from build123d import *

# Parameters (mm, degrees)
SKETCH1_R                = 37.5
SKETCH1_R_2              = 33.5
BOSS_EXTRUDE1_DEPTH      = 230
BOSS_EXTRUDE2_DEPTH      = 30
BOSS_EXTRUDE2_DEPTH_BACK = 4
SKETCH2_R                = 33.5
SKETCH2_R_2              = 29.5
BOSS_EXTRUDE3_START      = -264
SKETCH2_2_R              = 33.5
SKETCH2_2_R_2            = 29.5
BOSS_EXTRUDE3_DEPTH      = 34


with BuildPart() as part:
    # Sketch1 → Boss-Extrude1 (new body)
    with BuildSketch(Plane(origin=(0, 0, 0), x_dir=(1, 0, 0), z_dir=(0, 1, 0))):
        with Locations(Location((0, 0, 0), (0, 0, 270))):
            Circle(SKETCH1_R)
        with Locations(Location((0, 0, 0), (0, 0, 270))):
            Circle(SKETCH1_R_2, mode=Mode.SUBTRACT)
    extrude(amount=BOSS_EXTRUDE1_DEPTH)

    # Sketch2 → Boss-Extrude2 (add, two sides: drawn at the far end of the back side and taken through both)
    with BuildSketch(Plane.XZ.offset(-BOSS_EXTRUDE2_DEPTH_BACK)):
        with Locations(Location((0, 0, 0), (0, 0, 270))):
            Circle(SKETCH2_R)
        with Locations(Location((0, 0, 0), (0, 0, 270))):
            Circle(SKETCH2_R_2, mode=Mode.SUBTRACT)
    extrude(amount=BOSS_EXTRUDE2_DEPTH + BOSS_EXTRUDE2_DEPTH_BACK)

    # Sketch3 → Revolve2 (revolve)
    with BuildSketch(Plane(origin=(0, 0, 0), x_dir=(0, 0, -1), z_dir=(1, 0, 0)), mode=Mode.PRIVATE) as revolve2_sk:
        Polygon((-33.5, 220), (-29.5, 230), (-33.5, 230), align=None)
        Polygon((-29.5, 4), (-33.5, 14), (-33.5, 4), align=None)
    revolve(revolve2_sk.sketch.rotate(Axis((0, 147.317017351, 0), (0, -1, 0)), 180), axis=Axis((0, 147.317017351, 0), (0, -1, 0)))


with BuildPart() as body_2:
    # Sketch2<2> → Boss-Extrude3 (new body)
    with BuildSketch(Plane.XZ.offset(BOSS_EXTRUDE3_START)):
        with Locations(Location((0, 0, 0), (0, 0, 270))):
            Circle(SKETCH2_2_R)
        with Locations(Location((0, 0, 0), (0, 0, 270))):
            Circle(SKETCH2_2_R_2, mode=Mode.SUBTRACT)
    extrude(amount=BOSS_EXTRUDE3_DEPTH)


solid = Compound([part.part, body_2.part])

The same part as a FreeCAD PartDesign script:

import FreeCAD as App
import Part
import Sketcher

V = App.Vector

doc = App.newDocument("Part")
params = doc.addObject("Spreadsheet::Sheet", "Params")
for row, (alias, value) in enumerate([
    ("sketch1_diameter", "75 mm"),
    ("sketch1_diameter2", "67 mm"),
    ("pad1_length", "230 mm"),
    ("sketch2_diameter", "67 mm"),
    ("sketch2_diameter2", "59 mm"),
    ("pad2_length", "30 mm"),
    ("pad2_length2", "4 mm"),
    ("sketch3_width", "10 mm"),
    ("sketch3_height", "4 mm"),
    ("revolution_angle", "360 deg"),
    ("sketch4_diameter", "67 mm"),
    ("sketch4_diameter2", "59 mm"),
    ("pad3_length", "34 mm"),
], start=1):
    params.set(f"A{row}", alias)
    params.set(f"B{row}", "=" + value)
    params.setAlias(f"B{row}", alias)

body = doc.addObject("PartDesign::Body", "Body")

sketch1 = body.newObject("Sketcher::SketchObject", "Sketch")
sketch1.AttachmentSupport = (doc.getObject("XZ_Plane"), [""])
sketch1.MapMode = "FlatFace"
sketch1.addGeometry(Part.Circle(V(0, 0, 0), V(0, 0, 1), 38), False)
sketch1.addGeometry(Part.Circle(V(0, 0, 0), V(0, 0, 1), 34), False)
sketch1.addConstraint(Sketcher.Constraint("Coincident", 0, 3, -1, 1))
sketch1.addConstraint(Sketcher.Constraint("Coincident", 1, 3, -1, 1))
sketch1.addConstraint(Sketcher.Constraint("Diameter", 0, 75.0))
sketch1.addConstraint(Sketcher.Constraint("Diameter", 1, 67.0))
sketch1.setExpression("Constraints[2]", "Params.sketch1_diameter")
sketch1.setExpression("Constraints[3]", "Params.sketch1_diameter2")
pad1 = body.newObject("PartDesign::Pad", "Pad")
pad1.Profile = sketch1
pad1.setExpression("Length", "Params.pad1_length")
pad1.Reversed = True

sketch2 = body.newObject("Sketcher::SketchObject", "Sketch001")
sketch2.AttachmentSupport = (doc.getObject("XZ_Plane"), [""])
sketch2.MapMode = "FlatFace"
sketch2.addGeometry(Part.Circle(V(0, 0, 0), V(0, 0, 1), 34), False)
sketch2.addGeometry(Part.Circle(V(0, 0, 0), V(0, 0, 1), 30), False)
sketch2.addConstraint(Sketcher.Constraint("Coincident", 0, 3, -1, 1))
sketch2.addConstraint(Sketcher.Constraint("Coincident", 1, 3, -1, 1))
sketch2.addConstraint(Sketcher.Constraint("Diameter", 0, 67.0))
sketch2.addConstraint(Sketcher.Constraint("Diameter", 1, 59.0))
sketch2.setExpression("Constraints[2]", "Params.sketch2_diameter")
sketch2.setExpression("Constraints[3]", "Params.sketch2_diameter2")
pad2 = body.newObject("PartDesign::Pad", "Pad001")
pad2.Profile = sketch2
pad2.Type = "TwoLengths"
pad2.setExpression("Length", "Params.pad2_length")
pad2.setExpression("Length2", "Params.pad2_length2")

sketch3 = body.newObject("Sketcher::SketchObject", "Sketch002")
sketch3.AttachmentSupport = (doc.getObject("YZ_Plane"), [""])
sketch3.MapMode = "FlatFace"
sketch3.addGeometry(Part.LineSegment(V(220, 33.5, 0), V(230, 29.5, 0)), False)
sketch3.addGeometry(Part.LineSegment(V(230, 29.5, 0), V(230, 33.5, 0)), False)
sketch3.addGeometry(Part.LineSegment(V(230, 33.5, 0), V(220, 33.5, 0)), False)
sketch3.addGeometry(Part.LineSegment(V(4, 29.5, 0), V(14, 33.5, 0)), False)
sketch3.addGeometry(Part.LineSegment(V(14, 33.5, 0), V(4, 33.5, 0)), False)
sketch3.addGeometry(Part.LineSegment(V(4, 33.5, 0), V(4, 29.5, 0)), False)
sketch3.addConstraint(Sketcher.Constraint("Coincident", 0, 2, 1, 1))
sketch3.addConstraint(Sketcher.Constraint("Coincident", 1, 2, 2, 1))
sketch3.addConstraint(Sketcher.Constraint("Coincident", 2, 2, 0, 1))
sketch3.addConstraint(Sketcher.Constraint("Coincident", 3, 2, 4, 1))
sketch3.addConstraint(Sketcher.Constraint("Coincident", 4, 2, 5, 1))
sketch3.addConstraint(Sketcher.Constraint("Coincident", 5, 2, 3, 1))
sketch3.addConstraint(Sketcher.Constraint("Vertical", 1))
sketch3.addConstraint(Sketcher.Constraint("Horizontal", 2))
sketch3.addConstraint(Sketcher.Constraint("Horizontal", 4))
sketch3.addConstraint(Sketcher.Constraint("Vertical", 5))
sketch3.addConstraint(Sketcher.Constraint("Horizontal", 2, 2, 3, 2))
sketch3.addConstraint(Sketcher.Constraint("Horizontal", 0, 2, 5, 2))
sketch3.addConstraint(Sketcher.Constraint("Equal", 2, 4))
sketch3.addConstraint(Sketcher.Constraint("DistanceX", 2, 2, 2, 1, 10.0))
sketch3.addConstraint(Sketcher.Constraint("DistanceY", 1, 1, 1, 2, 4.0))
sketch3.addConstraint(Sketcher.Constraint("DistanceX", -1, 1, 0, 2, 230.0))
sketch3.addConstraint(Sketcher.Constraint("DistanceX", -1, 1, 3, 2, 14.0))
sketch3.addConstraint(Sketcher.Constraint("DistanceY", -1, 1, 0, 2, 29.5))
sketch3.setExpression("Constraints[13]", "Params.sketch3_width")
sketch3.setExpression("Constraints[14]", "Params.sketch3_height")
revolution = body.newObject("PartDesign::Revolution", "Revolution")
revolution.Profile = sketch3
revolution.ReferenceAxis = (sketch3, ["H_Axis"])
revolution.setExpression("Angle", "Params.revolution_angle")
body2 = doc.addObject("PartDesign::Body", "Body001")

sketch4 = body2.newObject("Sketcher::SketchObject", "Sketch003")
sketch4.AttachmentSupport = (doc.getObject("XZ_Plane001"), [""])
sketch4.MapMode = "FlatFace"
sketch4.AttachmentOffset = App.Placement(V(0, 0, -264), App.Rotation())
sketch4.addGeometry(Part.Circle(V(0, 0, 0), V(0, 0, 1), 34), False)
sketch4.addGeometry(Part.Circle(V(0, 0, 0), V(0, 0, 1), 30), False)
sketch4.addConstraint(Sketcher.Constraint("Coincident", 0, 3, -1, 1))
sketch4.addConstraint(Sketcher.Constraint("Coincident", 1, 3, -1, 1))
sketch4.addConstraint(Sketcher.Constraint("Diameter", 0, 67.0))
sketch4.addConstraint(Sketcher.Constraint("Diameter", 1, 59.0))
sketch4.setExpression("Constraints[2]", "Params.sketch4_diameter")
sketch4.setExpression("Constraints[3]", "Params.sketch4_diameter2")
pad3 = body2.newObject("PartDesign::Pad", "Pad002")
pad3.Profile = sketch4
pad3.setExpression("Length", "Params.pad3_length")

doc.recompute()
